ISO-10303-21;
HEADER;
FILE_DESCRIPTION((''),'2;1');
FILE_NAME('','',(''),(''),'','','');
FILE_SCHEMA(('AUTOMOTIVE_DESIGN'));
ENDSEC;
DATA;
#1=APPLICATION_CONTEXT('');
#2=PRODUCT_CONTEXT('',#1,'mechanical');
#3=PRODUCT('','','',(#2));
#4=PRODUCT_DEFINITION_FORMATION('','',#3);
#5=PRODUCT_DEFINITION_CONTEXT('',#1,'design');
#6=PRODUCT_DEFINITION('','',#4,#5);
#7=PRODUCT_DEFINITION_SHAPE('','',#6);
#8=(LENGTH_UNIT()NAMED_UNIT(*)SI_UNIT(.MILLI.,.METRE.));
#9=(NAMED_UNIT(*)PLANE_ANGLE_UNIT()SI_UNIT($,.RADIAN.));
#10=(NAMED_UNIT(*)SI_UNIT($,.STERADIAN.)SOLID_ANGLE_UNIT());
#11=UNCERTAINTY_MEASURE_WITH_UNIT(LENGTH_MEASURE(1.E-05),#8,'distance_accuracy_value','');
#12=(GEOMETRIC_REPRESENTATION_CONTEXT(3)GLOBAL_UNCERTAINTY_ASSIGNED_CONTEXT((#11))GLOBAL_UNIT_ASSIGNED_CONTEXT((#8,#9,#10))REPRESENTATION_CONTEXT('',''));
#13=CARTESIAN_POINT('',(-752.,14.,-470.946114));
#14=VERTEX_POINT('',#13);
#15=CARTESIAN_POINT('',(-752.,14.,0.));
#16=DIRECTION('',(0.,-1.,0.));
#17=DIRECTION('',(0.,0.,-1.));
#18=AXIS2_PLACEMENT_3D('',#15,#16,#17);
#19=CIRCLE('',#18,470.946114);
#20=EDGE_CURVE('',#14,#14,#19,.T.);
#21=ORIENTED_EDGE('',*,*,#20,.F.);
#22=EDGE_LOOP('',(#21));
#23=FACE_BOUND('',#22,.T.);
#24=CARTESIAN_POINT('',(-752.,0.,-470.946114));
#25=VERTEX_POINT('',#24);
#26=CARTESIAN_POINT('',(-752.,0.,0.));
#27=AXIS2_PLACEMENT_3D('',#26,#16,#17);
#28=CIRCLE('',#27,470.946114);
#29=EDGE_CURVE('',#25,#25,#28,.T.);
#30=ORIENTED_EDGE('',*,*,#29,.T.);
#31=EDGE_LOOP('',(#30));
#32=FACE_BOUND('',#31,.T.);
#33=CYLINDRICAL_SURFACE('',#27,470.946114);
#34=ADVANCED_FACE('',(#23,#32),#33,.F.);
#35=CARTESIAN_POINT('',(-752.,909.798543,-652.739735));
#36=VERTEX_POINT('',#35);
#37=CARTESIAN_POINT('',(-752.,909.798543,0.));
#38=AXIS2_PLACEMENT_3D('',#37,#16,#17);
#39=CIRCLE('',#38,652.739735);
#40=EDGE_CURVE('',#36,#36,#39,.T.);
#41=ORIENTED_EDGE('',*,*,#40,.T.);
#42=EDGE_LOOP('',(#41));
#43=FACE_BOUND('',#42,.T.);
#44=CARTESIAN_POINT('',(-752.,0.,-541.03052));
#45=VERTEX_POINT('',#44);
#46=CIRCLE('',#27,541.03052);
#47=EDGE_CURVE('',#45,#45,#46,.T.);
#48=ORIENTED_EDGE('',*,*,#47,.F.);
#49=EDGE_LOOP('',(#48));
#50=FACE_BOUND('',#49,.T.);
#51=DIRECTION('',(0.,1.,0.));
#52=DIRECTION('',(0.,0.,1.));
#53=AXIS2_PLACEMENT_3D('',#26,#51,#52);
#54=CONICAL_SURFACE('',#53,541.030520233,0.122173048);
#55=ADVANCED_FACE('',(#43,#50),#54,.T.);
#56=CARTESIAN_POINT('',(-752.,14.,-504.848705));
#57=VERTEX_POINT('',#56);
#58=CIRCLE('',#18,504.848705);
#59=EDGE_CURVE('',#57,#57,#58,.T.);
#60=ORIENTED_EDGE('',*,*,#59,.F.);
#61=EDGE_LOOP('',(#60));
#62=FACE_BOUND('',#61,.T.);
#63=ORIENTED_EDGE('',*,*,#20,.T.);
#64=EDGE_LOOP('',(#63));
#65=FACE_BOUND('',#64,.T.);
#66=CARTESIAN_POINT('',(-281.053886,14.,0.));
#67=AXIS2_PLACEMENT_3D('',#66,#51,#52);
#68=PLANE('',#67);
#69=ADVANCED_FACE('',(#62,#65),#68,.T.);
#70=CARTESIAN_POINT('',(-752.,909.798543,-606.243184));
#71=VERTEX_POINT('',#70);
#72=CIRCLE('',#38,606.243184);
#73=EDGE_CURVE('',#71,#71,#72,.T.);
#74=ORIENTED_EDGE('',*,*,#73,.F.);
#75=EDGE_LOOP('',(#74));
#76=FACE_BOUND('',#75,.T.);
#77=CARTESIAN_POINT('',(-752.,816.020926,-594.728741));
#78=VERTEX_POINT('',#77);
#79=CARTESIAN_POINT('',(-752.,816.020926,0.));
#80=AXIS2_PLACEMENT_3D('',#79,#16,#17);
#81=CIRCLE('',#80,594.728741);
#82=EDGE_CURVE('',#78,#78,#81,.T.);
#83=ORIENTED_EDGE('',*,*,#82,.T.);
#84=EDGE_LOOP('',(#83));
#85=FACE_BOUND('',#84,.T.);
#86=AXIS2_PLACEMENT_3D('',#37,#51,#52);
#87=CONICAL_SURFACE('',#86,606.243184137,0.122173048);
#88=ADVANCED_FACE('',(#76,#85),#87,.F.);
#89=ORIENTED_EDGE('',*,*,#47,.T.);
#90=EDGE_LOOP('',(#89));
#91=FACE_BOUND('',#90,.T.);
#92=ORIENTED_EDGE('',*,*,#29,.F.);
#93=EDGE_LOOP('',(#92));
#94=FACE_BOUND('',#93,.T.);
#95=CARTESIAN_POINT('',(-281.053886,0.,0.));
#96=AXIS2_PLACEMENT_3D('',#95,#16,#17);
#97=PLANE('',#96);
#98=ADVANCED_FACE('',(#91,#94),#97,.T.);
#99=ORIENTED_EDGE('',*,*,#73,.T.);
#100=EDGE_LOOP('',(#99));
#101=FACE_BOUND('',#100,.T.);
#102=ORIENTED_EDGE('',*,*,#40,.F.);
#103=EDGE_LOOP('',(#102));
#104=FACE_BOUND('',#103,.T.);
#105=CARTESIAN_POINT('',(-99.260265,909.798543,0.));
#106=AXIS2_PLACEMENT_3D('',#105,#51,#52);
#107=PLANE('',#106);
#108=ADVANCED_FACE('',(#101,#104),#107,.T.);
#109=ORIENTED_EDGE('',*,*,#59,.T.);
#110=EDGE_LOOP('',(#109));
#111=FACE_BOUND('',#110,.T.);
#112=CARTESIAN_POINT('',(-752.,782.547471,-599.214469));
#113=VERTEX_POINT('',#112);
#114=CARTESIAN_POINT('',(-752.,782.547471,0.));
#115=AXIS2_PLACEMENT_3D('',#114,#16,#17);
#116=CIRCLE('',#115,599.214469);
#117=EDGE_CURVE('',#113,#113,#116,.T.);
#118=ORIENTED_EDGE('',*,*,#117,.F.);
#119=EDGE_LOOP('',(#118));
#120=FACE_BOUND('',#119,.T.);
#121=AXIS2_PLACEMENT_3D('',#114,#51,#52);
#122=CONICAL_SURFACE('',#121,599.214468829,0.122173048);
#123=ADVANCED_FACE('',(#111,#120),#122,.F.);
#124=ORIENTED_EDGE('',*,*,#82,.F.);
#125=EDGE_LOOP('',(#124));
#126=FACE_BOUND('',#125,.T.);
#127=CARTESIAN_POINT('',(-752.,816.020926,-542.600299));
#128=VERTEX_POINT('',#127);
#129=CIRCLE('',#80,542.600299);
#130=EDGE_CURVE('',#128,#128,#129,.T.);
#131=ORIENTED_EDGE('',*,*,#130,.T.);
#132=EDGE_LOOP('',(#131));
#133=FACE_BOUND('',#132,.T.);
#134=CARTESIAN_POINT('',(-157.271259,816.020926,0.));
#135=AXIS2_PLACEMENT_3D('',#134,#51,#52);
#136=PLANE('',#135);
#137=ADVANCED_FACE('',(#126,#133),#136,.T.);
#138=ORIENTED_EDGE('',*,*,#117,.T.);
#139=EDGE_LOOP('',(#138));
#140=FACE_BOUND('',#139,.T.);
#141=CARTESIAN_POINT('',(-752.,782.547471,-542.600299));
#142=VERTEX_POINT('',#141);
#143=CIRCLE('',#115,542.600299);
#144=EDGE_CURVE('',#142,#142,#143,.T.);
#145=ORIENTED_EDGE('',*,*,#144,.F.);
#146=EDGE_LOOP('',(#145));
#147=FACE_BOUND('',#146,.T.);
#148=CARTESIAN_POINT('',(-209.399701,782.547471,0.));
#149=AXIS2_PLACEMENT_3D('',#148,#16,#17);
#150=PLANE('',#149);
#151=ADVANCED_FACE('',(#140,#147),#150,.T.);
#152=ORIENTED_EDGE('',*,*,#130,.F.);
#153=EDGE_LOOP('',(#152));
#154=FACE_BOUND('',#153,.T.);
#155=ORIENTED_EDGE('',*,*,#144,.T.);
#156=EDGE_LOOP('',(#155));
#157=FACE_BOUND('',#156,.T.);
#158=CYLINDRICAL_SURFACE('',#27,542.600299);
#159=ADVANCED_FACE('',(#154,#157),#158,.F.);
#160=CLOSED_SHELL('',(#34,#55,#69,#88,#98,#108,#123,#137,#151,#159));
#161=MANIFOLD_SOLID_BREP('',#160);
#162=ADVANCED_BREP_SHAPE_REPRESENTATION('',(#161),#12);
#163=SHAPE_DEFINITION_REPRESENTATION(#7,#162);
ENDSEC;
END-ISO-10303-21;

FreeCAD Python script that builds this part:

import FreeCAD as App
import Part
import Sketcher
from FreeCAD import Vector
Q = App.Units.Quantity

doc = App.newDocument("Part")
body = doc.addObject("PartDesign::Body", "Body")

# Sketch on XY plane
sketch1 = body.newObject("Sketcher::SketchObject", "Sketch")
sketch1.AttachmentSupport = (doc.getObject("XY_Plane"), [""])
sketch1.MapMode = "FlatFace"
sketch1.addGeometry([
    Part.LineSegment(Vector(-281.053886, 0, 0), Vector(-210.96948, 0, 0)),  # 0
    Part.LineSegment(Vector(-210.96948, 0, 0), Vector(-99.260265, 909.798543, 0)),  # 1
    Part.LineSegment(Vector(-99.260265, 909.798543, 0), Vector(-145.756816, 909.798543, 0)),  # 2
    Part.LineSegment(Vector(-145.756816, 909.798543, 0), Vector(-157.271259, 816.020926, 0)),  # 3
    Part.LineSegment(Vector(-157.271259, 816.020926, 0), Vector(-209.399701, 816.020926, 0)),  # 4
    Part.LineSegment(Vector(-209.399701, 816.020926, 0), Vector(-209.399701, 782.547471, 0)),  # 5
    Part.LineSegment(Vector(-209.399701, 782.547471, 0), Vector(-152.785531, 782.547471, 0)),  # 6
    Part.LineSegment(Vector(-152.785531, 782.547471, 0), Vector(-247.151295, 14, 0)),  # 7
    Part.LineSegment(Vector(-247.151295, 14, 0), Vector(-281.053886, 14, 0)),  # 8
    Part.LineSegment(Vector(-281.053886, 14, 0), Vector(-281.053886, 0, 0)),  # 9
], False)
sketch1.addGeometry(Part.LineSegment(Vector(-752, 0, 0), Vector(-752, 909.798543, 0)), True)  # axis
sketch1.addConstraint([
    Sketcher.Constraint("Coincident", 0, 2, 1, 1),
    Sketcher.Constraint("Coincident", 1, 2, 2, 1),
    Sketcher.Constraint("Coincident", 2, 2, 3, 1),
    Sketcher.Constraint("Coincident", 3, 2, 4, 1),
    Sketcher.Constraint("Coincident", 4, 2, 5, 1),
    Sketcher.Constraint("Coincident", 5, 2, 6, 1),
    Sketcher.Constraint("Coincident", 6, 2, 7, 1),
    Sketcher.Constraint("Coincident", 7, 2, 8, 1),
    Sketcher.Constraint("Coincident", 8, 2, 9, 1),
    Sketcher.Constraint("Coincident", 9, 2, 0, 1),
    Sketcher.Constraint("Horizontal", 0),
    Sketcher.Constraint("Horizontal", 2),
    Sketcher.Constraint("Horizontal", 4),
    Sketcher.Constraint("Vertical", 5),
    Sketcher.Constraint("Horizontal", 6),
    Sketcher.Constraint("Horizontal", 8),
    Sketcher.Constraint("Vertical", 9),
    Sketcher.Constraint("Vertical", 10),
    Sketcher.Constraint("PointOnObject", 0, 2, -1),
    Sketcher.Constraint("PointOnObject", 10, 1, -1),
    Sketcher.Constraint("Parallel", 1, 3),
    Sketcher.Constraint("Parallel", 3, 7),
    Sketcher.Constraint("Horizontal", 2, 2, 10, 2),
    Sketcher.Constraint("DistanceY", 9, 2, 9, 1, 14.0),
    Sketcher.Constraint("Angle", 1, Q("83 deg")),
    Sketcher.Constraint("DistanceX", 10, 1, -1, 1, 752.0),
    Sketcher.Constraint("DistanceX", 2, 2, 2, 1, 46.496551),
    Sketcher.Constraint("DistanceX", 4, 2, 4, 1, 52.128441),
    Sketcher.Constraint("DistanceX", 6, 1, 6, 2, 56.614169),
    Sketcher.Constraint("DistanceX", 8, 2, 8, 1, 33.902591),
    Sketcher.Constraint("DistanceX", 4, 2, -1, 1, 209.399701),
    Sketcher.Constraint("Distance", 1, 916.630971),
    Sketcher.Constraint("Distance", 3, 94.481871),
    Sketcher.Constraint("DistanceX", 0, 1, 0, 2, 70.084406),
])
revolution = body.newObject("PartDesign::Revolution", "Revolution")
revolution.Profile = sketch1
revolution.ReferenceAxis = (sketch1, ["Axis0"])
revolution.Angle = 360

doc.recompute()
